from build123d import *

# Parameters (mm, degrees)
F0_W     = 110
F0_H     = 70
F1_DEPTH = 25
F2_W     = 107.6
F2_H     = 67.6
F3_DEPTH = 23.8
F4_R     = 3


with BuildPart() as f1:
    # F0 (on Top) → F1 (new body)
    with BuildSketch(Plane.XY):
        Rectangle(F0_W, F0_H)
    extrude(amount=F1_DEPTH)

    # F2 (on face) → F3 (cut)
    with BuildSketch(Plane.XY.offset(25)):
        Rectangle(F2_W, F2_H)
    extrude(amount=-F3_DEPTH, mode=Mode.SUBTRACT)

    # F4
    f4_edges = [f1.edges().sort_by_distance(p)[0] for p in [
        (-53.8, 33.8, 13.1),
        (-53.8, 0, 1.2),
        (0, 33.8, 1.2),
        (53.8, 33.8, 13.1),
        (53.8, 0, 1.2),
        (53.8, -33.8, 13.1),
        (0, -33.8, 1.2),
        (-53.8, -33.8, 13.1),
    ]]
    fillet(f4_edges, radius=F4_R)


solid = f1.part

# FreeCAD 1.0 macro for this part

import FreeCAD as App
import Part
import Sketcher
from FreeCAD import Vector
Q = App.Units.Quantity


def edges_at(feature, points):
    """Names of the edges that pass closest to the given points."""
    edges = feature.Shape.Edges
    near = lambda p: min(range(len(edges)), key=lambda i: edges[i].distToShape(Part.Vertex(*p))[0])
    return sorted({f"Edge{near(p) + 1}" for p in points})


def add_polygon(sketch, points):
    """Adds a closed chain of lines whose ends are joined by coincident constraints."""
    first, n = sketch.GeometryCount, len(points)
    for a, b in zip(points, points[1:] + points[:1]):
        sketch.addGeometry(Part.LineSegment(App.Vector(*a, 0), App.Vector(*b, 0)), False)
    for i in range(n):
        sketch.addConstraint(Sketcher.Constraint("Coincident", first + i, 2, first + (i + 1) % n, 1))

doc = App.newDocument("Part")
body = doc.addObject("PartDesign::Body", "Body")

# Sketch on XY plane
sketch1 = body.newObject("Sketcher::SketchObject", "Sketch")
sketch1.AttachmentSupport = (doc.getObject("XY_Plane"), [""])
sketch1.MapMode = "FlatFace"
add_polygon(sketch1, [(-55, 35), (-55, -35), (55, -35), (55, 35)])  # lines 0-3
sketch1.addConstraint([
    Sketcher.Constraint("Vertical", 0),
    Sketcher.Constraint("Horizontal", 1),
    Sketcher.Constraint("Vertical", 2),
    Sketcher.Constraint("Horizontal", 3),
    Sketcher.Constraint("Symmetric", 0, 2, 2, 2, -1, 1),
    Sketcher.Constraint("DistanceX", 1, 1, 1, 2, Q("110 mm")),
    Sketcher.Constraint("DistanceY", 0, 2, 0, 1, Q("70 mm")),
])
pad1 = body.newObject("PartDesign::Pad", "Pad")
pad1.Profile = sketch1
pad1.Length = 25

# Sketch on XY plane
sketch2 = body.newObject("Sketcher::SketchObject", "Sketch001")
sketch2.AttachmentSupport = (doc.getObject("XY_Plane"), [""])
sketch2.MapMode = "FlatFace"
sketch2.AttachmentOffset = App.Placement(Vector(0, 0, 25), App.Rotation())
add_polygon(sketch2, [(-54, 34), (-54, -34), (54, -34), (54, 34)])  # lines 0-3
sketch2.addConstraint([
    Sketcher.Constraint("Vertical", 0),
    Sketcher.Constraint("Horizontal", 1),
    Sketcher.Constraint("Vertical", 2),
    Sketcher.Constraint("Horizontal", 3),
    Sketcher.Constraint("Symmetric", 0, 2, 2, 2, -1, 1),
    Sketcher.Constraint("DistanceX", 1, 1, 1, 2, Q("107.6 mm")),
    Sketcher.Constraint("DistanceY", 0, 2, 0, 1, Q("67.6 mm")),
])
pocket1 = body.newObject("PartDesign::Pocket", "Pocket")
pocket1.Profile = sketch2
pocket1.Length = 23.8
doc.recompute()

fillet = body.newObject("PartDesign::Fillet", "Fillet")
fillet.Base = (pocket1, edges_at(pocket1, [
    (-53.8, 33.8, 13.1),
    (-53.8, 0, 1.2),
    (0, 33.8, 1.2),
    (53.8, 33.8, 13.1),
    (53.8, 0, 1.2),
    (53.8, -33.8, 13.1),
    (0, -33.8, 1.2),
    (-53.8, -33.8, 13.1),
]))
fillet.Radius = 3

doc.recompute()
